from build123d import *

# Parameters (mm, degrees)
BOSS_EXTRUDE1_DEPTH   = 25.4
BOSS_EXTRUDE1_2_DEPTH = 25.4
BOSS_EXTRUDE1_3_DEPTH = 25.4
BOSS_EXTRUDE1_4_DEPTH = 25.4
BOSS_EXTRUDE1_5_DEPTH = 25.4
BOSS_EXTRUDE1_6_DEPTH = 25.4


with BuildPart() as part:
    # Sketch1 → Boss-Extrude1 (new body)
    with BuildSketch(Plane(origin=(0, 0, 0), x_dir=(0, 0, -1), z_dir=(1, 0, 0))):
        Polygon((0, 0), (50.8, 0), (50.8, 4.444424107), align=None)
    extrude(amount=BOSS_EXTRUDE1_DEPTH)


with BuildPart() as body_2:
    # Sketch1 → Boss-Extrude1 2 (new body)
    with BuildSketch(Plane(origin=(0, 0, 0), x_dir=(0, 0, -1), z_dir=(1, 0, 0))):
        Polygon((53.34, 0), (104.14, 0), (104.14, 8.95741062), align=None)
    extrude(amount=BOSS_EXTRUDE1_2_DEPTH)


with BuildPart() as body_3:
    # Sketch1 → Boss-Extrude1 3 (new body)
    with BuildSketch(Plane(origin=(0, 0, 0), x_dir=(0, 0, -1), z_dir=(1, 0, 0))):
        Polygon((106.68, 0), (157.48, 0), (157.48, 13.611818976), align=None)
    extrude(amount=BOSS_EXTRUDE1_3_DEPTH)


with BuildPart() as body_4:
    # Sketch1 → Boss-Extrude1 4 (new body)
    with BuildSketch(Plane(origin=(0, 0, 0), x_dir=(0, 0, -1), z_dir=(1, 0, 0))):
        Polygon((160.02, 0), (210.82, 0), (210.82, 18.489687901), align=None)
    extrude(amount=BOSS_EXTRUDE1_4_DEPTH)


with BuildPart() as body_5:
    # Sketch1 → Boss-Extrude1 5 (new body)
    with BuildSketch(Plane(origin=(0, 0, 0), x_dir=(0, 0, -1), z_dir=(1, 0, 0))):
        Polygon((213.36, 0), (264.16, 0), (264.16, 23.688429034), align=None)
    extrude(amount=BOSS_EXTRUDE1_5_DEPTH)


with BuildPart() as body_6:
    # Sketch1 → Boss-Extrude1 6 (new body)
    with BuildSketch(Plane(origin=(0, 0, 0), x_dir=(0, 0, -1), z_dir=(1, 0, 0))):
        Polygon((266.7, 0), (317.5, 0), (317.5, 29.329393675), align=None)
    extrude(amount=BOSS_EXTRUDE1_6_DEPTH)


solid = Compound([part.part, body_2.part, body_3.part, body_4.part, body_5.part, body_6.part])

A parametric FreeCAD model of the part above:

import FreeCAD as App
import Part
import Sketcher
from FreeCAD import Vector
Q = App.Units.Quantity

doc = App.newDocument("Part")
body = doc.addObject("PartDesign::Body", "Body")

sketch1 = doc.addObject("Sketcher::SketchObject", "Sketch")
body.addObject(sketch1)
sketch1.AttachmentSupport = (doc.YZ_Plane, [""])
sketch1.MapMode = "FlatFace"
sketch1.addGeometry([
    Part.LineSegment(Vector(0, 0, 0), Vector(0, -50.8, 0)),
    Part.LineSegment(Vector(0, -50.8, 0), Vector(4.444424, -50.8, 0)),
    Part.LineSegment(Vector(4.444424, -50.8, 0), Vector(0, 0, 0)),
], False)
sketch1.addConstraint([
    Sketcher.Constraint("Coincident", 0, 2, 1, 1),
    Sketcher.Constraint("Coincident", 1, 2, 2, 1),
    Sketcher.Constraint("Coincident", 2, 2, 0, 1),
    Sketcher.Constraint("Vertical", 0),
    Sketcher.Constraint("Horizontal", 1),
    Sketcher.Constraint("Coincident", 2, 2, -1, 1),
    Sketcher.Constraint("DistanceY", 0, 2, 0, 1, Q("2 in")),
    Sketcher.Constraint("Angle", 2, Q("95 deg")),
])
pad1 = doc.addObject("PartDesign::Pad", "Pad")
body.addObject(pad1)
pad1.Profile = sketch1
pad1.Length = Q("1 in")
body2 = doc.addObject("PartDesign::Body", "Body001")

sketch2 = doc.addObject("Sketcher::SketchObject", "Sketch001")
body2.addObject(sketch2)
sketch2.AttachmentSupport = (doc.getObject("YZ_Plane001"), [""])
sketch2.MapMode = "FlatFace"
sketch2.addGeometry([
    Part.LineSegment(Vector(0, -53.34, 0), Vector(0, -104.14, 0)),
    Part.LineSegment(Vector(0, -104.14, 0), Vector(8.957411, -104.14, 0)),
    Part.LineSegment(Vector(8.957411, -104.14, 0), Vector(0, -53.34, 0)),
], False)
sketch2.addConstraint([
    Sketcher.Constraint("Coincident", 0, 2, 1, 1),
    Sketcher.Constraint("Coincident", 1, 2, 2, 1),
    Sketcher.Constraint("Coincident", 2, 2, 0, 1),
    Sketcher.Constraint("Vertical", 0),
    Sketcher.Constraint("Horizontal", 1),
    Sketcher.Constraint("PointOnObject", 0, 2, -2),
    Sketcher.Constraint("DistanceY", 0, 2, 0, 1, Q("2 in")),
    Sketcher.Constraint("Angle", 2, Q("100 deg")),
    Sketcher.Constraint("DistanceY", 0, 2, -1, 1, Q("4.1 in")),
])
pad2 = doc.addObject("PartDesign::Pad", "Pad001")
body2.addObject(pad2)
pad2.Profile = sketch2
pad2.Length = Q("1 in")
body3 = doc.addObject("PartDesign::Body", "Body002")

sketch3 = doc.addObject("Sketcher::SketchObject", "Sketch002")
body3.addObject(sketch3)
sketch3.AttachmentSupport = (doc.getObject("YZ_Plane002"), [""])
sketch3.MapMode = "FlatFace"
sketch3.addGeometry([
    Part.LineSegment(Vector(0, -106.68, 0), Vector(0, -157.48, 0)),
    Part.LineSegment(Vector(0, -157.48, 0), Vector(13.611819, -157.48, 0)),
    Part.LineSegment(Vector(13.611819, -157.48, 0), Vector(0, -106.68, 0)),
], False)
sketch3.addConstraint([
    Sketcher.Constraint("Coincident", 0, 2, 1, 1),
    Sketcher.Constraint("Coincident", 1, 2, 2, 1),
    Sketcher.Constraint("Coincident", 2, 2, 0, 1),
    Sketcher.Constraint("Vertical", 0),
    Sketcher.Constraint("Horizontal", 1),
    Sketcher.Constraint("PointOnObject", 0, 2, -2),
    Sketcher.Constraint("DistanceY", 0, 2, 0, 1, Q("2 in")),
    Sketcher.Constraint("Angle", 2, Q("105 deg")),
    Sketcher.Constraint("DistanceY", 0, 2, -1, 1, Q("6.2 in")),
])
pad3 = doc.addObject("PartDesign::Pad", "Pad002")
body3.addObject(pad3)
pad3.Profile = sketch3
pad3.Length = Q("1 in")
body4 = doc.addObject("PartDesign::Body", "Body003")

sketch4 = doc.addObject("Sketcher::SketchObject", "Sketch003")
body4.addObject(sketch4)
sketch4.AttachmentSupport = (doc.getObject("YZ_Plane003"), [""])
sketch4.MapMode = "FlatFace"
sketch4.addGeometry([
    Part.LineSegment(Vector(0, -160.02, 0), Vector(0, -210.82, 0)),
    Part.LineSegment(Vector(0, -210.82, 0), Vector(18.489688, -210.82, 0)),
    Part.LineSegment(Vector(18.489688, -210.82, 0), Vector(0, -160.02, 0)),
], False)
sketch4.addConstraint([
    Sketcher.Constraint("Coincident", 0, 2, 1, 1),
    Sketcher.Constraint("Coincident", 1, 2, 2, 1),
    Sketcher.Constraint("Coincident", 2, 2, 0, 1),
    Sketcher.Constraint("Vertical", 0),
    Sketcher.Constraint("Horizontal", 1),
    Sketcher.Constraint("PointOnObject", 0, 2, -2),
    Sketcher.Constraint("DistanceY", 0, 2, 0, 1, Q("2 in")),
    Sketcher.Constraint("Angle", 2, Q("110 deg")),
    Sketcher.Constraint("DistanceY", 0, 2, -1, 1, Q("8.3 in")),
])
pad4 = doc.addObject("PartDesign::Pad", "Pad003")
body4.addObject(pad4)
pad4.Profile = sketch4
pad4.Length = Q("1 in")
body5 = doc.addObject("PartDesign::Body", "Body004")

sketch5 = doc.addObject("Sketcher::SketchObject", "Sketch004")
body5.addObject(sketch5)
sketch5.AttachmentSupport = (doc.getObject("YZ_Plane004"), [""])
sketch5.MapMode = "FlatFace"
sketch5.addGeometry([
    Part.LineSegment(Vector(0, -213.36, 0), Vector(0, -264.16, 0)),
    Part.LineSegment(Vector(0, -264.16, 0), Vector(23.688429, -264.16, 0)),
    Part.LineSegment(Vector(23.688429, -264.16, 0), Vector(0, -213.36, 0)),
], False)
sketch5.addConstraint([
    Sketcher.Constraint("Coincident", 0, 2, 1, 1),
    Sketcher.Constraint("Coincident", 1, 2, 2, 1),
    Sketcher.Constraint("Coincident", 2, 2, 0, 1),
    Sketcher.Constraint("Vertical", 0),
    Sketcher.Constraint("Horizontal", 1),
    Sketcher.Constraint("PointOnObject", 0, 2, -2),
    Sketcher.Constraint("DistanceY", 0, 2, 0, 1, Q("2 in")),
    Sketcher.Constraint("Angle", 2, Q("115 deg")),
    Sketcher.Constraint("DistanceY", 0, 2, -1, 1, Q("10.4 in")),
])
pad5 = doc.addObject("PartDesign::Pad", "Pad004")
body5.addObject(pad5)
pad5.Profile = sketch5
pad5.Length = Q("1 in")
body6 = doc.addObject("PartDesign::Body", "Body005")

sketch6 = doc.addObject("Sketcher::SketchObject", "Sketch005")
body6.addObject(sketch6)
sketch6.AttachmentSupport = (doc.getObject("YZ_Plane005"), [""])
sketch6.MapMode = "FlatFace"
sketch6.addGeometry([
    Part.LineSegment(Vector(0, -266.7, 0), Vector(0, -317.5, 0)),
    Part.LineSegment(Vector(0, -317.5, 0), Vector(29.329394, -317.5, 0)),
    Part.LineSegment(Vector(29.329394, -317.5, 0), Vector(0, -266.7, 0)),
], False)
sketch6.addConstraint([
    Sketcher.Constraint("Coincident", 0, 2, 1, 1),
    Sketcher.Constraint("Coincident", 1, 2, 2, 1),
    Sketcher.Constraint("Coincident", 2, 2, 0, 1),
    Sketcher.Constraint("Vertical", 0),
    Sketcher.Constraint("Horizontal", 1),
    Sketcher.Constraint("PointOnObject", 0, 2, -2),
    Sketcher.Constraint("DistanceY", 0, 2, 0, 1, Q("2 in")),
    Sketcher.Constraint("Angle", 2, Q("120 deg")),
    Sketcher.Constraint("DistanceY", 0, 2, -1, 1, Q("12.5 in")),
])
pad6 = doc.addObject("PartDesign::Pad", "Pad005")
body6.addObject(pad6)
pad6.Profile = sketch6
pad6.Length = Q("1 in")

doc.recompute()
